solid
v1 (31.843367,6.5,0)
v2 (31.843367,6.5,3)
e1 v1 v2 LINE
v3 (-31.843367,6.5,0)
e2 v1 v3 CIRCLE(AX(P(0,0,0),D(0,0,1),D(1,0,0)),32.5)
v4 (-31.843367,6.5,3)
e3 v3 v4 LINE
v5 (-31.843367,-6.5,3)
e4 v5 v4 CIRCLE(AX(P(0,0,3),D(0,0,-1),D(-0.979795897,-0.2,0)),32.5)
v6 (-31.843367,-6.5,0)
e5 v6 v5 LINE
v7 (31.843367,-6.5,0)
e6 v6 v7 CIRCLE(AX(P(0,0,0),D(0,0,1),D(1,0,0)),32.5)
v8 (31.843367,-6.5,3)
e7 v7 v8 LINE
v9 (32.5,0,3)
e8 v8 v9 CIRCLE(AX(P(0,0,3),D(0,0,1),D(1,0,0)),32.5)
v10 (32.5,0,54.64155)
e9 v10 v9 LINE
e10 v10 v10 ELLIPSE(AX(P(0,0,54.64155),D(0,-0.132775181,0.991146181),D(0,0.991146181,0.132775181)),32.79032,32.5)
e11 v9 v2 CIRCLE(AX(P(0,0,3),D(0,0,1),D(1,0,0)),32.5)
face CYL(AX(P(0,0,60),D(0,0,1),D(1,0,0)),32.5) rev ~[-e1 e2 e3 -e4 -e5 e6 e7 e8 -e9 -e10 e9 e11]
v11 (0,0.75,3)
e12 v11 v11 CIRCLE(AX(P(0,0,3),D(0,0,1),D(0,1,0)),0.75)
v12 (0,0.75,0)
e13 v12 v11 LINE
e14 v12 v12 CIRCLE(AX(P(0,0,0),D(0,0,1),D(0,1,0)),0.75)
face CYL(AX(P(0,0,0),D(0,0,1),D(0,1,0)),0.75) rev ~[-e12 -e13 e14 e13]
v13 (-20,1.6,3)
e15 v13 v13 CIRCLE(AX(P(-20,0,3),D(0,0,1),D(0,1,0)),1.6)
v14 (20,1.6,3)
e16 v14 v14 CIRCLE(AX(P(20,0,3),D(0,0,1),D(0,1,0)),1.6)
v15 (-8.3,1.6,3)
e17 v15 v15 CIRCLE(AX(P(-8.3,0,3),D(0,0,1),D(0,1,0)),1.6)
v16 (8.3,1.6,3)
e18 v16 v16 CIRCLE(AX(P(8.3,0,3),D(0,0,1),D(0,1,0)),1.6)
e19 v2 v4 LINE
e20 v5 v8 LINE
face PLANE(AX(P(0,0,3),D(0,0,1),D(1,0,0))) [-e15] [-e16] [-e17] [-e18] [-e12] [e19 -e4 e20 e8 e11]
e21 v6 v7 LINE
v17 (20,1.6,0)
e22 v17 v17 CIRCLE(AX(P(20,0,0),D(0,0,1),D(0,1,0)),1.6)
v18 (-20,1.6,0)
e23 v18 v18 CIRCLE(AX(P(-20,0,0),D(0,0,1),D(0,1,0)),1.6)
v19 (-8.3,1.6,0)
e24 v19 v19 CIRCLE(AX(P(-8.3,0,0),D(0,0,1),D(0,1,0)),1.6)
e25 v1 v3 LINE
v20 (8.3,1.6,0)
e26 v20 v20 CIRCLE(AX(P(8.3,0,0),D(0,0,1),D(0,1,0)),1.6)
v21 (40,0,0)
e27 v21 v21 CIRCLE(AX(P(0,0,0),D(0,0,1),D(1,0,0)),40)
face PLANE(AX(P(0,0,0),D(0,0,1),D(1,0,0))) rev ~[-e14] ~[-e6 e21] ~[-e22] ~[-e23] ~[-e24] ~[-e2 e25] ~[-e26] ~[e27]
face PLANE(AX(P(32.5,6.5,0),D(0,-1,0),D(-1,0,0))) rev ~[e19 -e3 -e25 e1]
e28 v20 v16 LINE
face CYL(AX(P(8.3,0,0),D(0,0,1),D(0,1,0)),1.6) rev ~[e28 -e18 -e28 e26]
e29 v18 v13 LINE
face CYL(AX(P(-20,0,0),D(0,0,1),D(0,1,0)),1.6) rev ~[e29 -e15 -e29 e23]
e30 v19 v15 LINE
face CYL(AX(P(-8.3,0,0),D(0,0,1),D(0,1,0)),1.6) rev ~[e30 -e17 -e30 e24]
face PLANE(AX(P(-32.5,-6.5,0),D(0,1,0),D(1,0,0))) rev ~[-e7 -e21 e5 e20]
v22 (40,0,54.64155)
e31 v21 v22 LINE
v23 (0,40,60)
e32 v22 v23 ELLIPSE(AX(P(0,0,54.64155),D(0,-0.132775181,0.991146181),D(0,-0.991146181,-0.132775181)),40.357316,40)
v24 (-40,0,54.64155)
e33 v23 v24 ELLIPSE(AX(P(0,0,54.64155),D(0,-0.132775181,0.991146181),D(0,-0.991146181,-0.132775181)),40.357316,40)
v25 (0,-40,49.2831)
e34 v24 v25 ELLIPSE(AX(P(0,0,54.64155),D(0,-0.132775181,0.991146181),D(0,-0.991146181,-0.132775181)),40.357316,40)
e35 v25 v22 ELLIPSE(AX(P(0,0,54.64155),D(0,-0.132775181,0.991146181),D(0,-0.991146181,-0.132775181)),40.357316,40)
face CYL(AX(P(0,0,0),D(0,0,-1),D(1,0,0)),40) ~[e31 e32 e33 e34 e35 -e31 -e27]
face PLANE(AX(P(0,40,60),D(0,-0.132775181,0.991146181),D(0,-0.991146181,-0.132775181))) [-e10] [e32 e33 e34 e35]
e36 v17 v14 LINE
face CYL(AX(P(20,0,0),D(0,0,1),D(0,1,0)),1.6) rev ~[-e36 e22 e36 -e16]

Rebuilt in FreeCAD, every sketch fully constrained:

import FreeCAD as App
import Part
import Sketcher

V = App.Vector
Q = App.Units.Quantity


def add_polygon(sketch, points):
    """Adds a closed chain of lines whose ends are joined by coincident constraints."""
    first, n = sketch.GeometryCount, len(points)
    for a, b in zip(points, points[1:] + points[:1]):
        sketch.addGeometry(Part.LineSegment(App.Vector(*a, 0), App.Vector(*b, 0)), False)
    for i in range(n):
        sketch.addConstraint(Sketcher.Constraint("Coincident", first + i, 2, first + (i + 1) % n, 1))

doc = App.newDocument("Part")
body = doc.addObject("PartDesign::Body", "Body")

sketch1 = body.newObject("Sketcher::SketchObject", "Sketch")
sketch1.AttachmentSupport = (doc.getObject("XY_Plane"), [""])
sketch1.MapMode = "FlatFace"
sketch1.addGeometry(Part.Circle(V(0, 0, 0), V(0, 0, 1), 40), False)
sketch1.addConstraint([
    Sketcher.Constraint("Coincident", 0, 3, -1, 1),
    Sketcher.Constraint("Diameter", 0, 80.0),
])
pad1 = body.newObject("PartDesign::Pad", "Pad")
pad1.Profile = sketch1
pad1.Length = 60

sketch2 = body.newObject("Sketcher::SketchObject", "Sketch001")
sketch2.AttachmentSupport = (doc.getObject("XY_Plane"), [""])
sketch2.MapMode = "FlatFace"
sketch2.AttachmentOffset = App.Placement(V(0, 0, 60), App.Rotation())
sketch2.addGeometry(Part.Circle(V(0, 0, 0), V(0, 0, 1), 32.5), False)
sketch2.addConstraint([
    Sketcher.Constraint("Coincident", 0, 3, -1, 1),
    Sketcher.Constraint("Diameter", 0, 65.0),
])
pocket1 = body.newObject("PartDesign::Pocket", "Pocket")
pocket1.Profile = sketch2
pocket1.Length = 60

sketch3 = body.newObject("Sketcher::SketchObject", "Sketch002")
sketch3.AttachmentSupport = (doc.getObject("YZ_Plane"), [""])
sketch3.MapMode = "FlatFace"
add_polygon(sketch3, [(-40, 49.2831), (40, 60), (-40, 60)])
sketch3.addConstraint([
    Sketcher.Constraint("Horizontal", 1),
    Sketcher.Constraint("Vertical", 2),
    Sketcher.Constraint("DistanceX", 1, 2, 1, 1, 80.0),
    Sketcher.Constraint("DistanceX", -1, 1, 0, 2, 40.0),
    Sketcher.Constraint("DistanceY", -1, 1, 0, 2, 60.0),
    Sketcher.Constraint("Angle", 0, Q("7.63 deg")),
])
pocket2 = body.newObject("PartDesign::Pocket", "Pocket001")
pocket2.Profile = sketch3
pocket2.Length = 80
pocket2.Midplane = True

sketch4 = body.newObject("Sketcher::SketchObject", "Sketch003")
sketch4.AttachmentSupport = (doc.getObject("XY_Plane"), [""])
sketch4.MapMode = "FlatFace"
add_polygon(sketch4, [(-32.5, 6.5), (-32.5, -6.5), (32.5, -6.5), (32.5, 6.5)])
sketch4.addConstraint([
    Sketcher.Constraint("Vertical", 0),
    Sketcher.Constraint("Horizontal", 1),
    Sketcher.Constraint("Vertical", 2),
    Sketcher.Constraint("Horizontal", 3),
    Sketcher.Constraint("Symmetric", 0, 2, 2, 2, -1, 1),
    Sketcher.Constraint("DistanceX", 1, 1, 1, 2, 65.0),
    Sketcher.Constraint("DistanceY", 0, 2, 0, 1, 13.0),
])
pad2 = body.newObject("PartDesign::Pad", "Pad001")
pad2.Profile = sketch4
pad2.Length = 3

sketch5 = body.newObject("Sketcher::SketchObject", "Sketch004")
sketch5.AttachmentSupport = (doc.getObject("XY_Plane"), [""])
sketch5.MapMode = "FlatFace"
sketch5.addGeometry([
    Part.Circle(V(20, 0, 0), V(0, 0, 1), 1.6),
    Part.Circle(V(-20, 0, 0), V(0, 0, 1), 1.6),
], False)
sketch5.addConstraint([
    Sketcher.Constraint("Equal", 0, 1),
    Sketcher.Constraint("Symmetric", 0, 3, 1, 3, -1, 1),
    Sketcher.Constraint("PointOnObject", 0, 3, -1),
    Sketcher.Constraint("Diameter", 0, 3.2),
    Sketcher.Constraint("DistanceX", -1, 1, 0, 3, 20.0),
])
doc.recompute()
hole = body.newObject("PartDesign::Hole", "Hole")
hole.Profile = sketch5
hole.ThreadType = "None"
hole.Diameter = 3.2
hole.DepthType = "Dimension"
hole.Depth = 15
hole.DrillPoint = "Angled"
hole.DrillPointAngle = 118
hole.Reversed = True

sketch6 = body.newObject("Sketcher::SketchObject", "Sketch005")
sketch6.AttachmentSupport = (doc.getObject("XY_Plane"), [""])
sketch6.MapMode = "FlatFace"
sketch6.addGeometry(Part.Circle(V(0, 0, 0), V(0, 0, 1), 0.75), False)
sketch6.addConstraint([
    Sketcher.Constraint("Coincident", 0, 3, -1, 1),
    Sketcher.Constraint("Diameter", 0, 1.5),
])
doc.recompute()
hole2 = body.newObject("PartDesign::Hole", "Hole001")
hole2.Profile = sketch6
hole2.ThreadType = "None"
hole2.Diameter = 1.5
hole2.DepthType = "Dimension"
hole2.Depth = 15
hole2.DrillPoint = "Angled"
hole2.DrillPointAngle = 118
hole2.Reversed = True

sketch7 = body.newObject("Sketcher::SketchObject", "Sketch006")
sketch7.AttachmentSupport = (doc.getObject("XY_Plane"), [""])
sketch7.MapMode = "FlatFace"
sketch7.addGeometry([
    Part.Circle(V(8.3, 0, 0), V(0, 0, 1), 1.6),
    Part.Circle(V(-8.3, 0, 0), V(0, 0, 1), 1.6),
], False)
sketch7.addConstraint([
    Sketcher.Constraint("Equal", 0, 1),
    Sketcher.Constraint("Symmetric", 0, 3, 1, 3, -1, 1),
    Sketcher.Constraint("PointOnObject", 0, 3, -1),
    Sketcher.Constraint("Diameter", 0, 3.2),
    Sketcher.Constraint("DistanceX", -1, 1, 0, 3, 8.3),
])
doc.recompute()
hole3 = body.newObject("PartDesign::Hole", "Hole002")
hole3.Profile = sketch7
hole3.ThreadType = "None"
hole3.Diameter = 3.2
hole3.DepthType = "Dimension"
hole3.Depth = 8.8
hole3.DrillPoint = "Angled"
hole3.DrillPointAngle = 118
hole3.Reversed = True

doc.recompute()
